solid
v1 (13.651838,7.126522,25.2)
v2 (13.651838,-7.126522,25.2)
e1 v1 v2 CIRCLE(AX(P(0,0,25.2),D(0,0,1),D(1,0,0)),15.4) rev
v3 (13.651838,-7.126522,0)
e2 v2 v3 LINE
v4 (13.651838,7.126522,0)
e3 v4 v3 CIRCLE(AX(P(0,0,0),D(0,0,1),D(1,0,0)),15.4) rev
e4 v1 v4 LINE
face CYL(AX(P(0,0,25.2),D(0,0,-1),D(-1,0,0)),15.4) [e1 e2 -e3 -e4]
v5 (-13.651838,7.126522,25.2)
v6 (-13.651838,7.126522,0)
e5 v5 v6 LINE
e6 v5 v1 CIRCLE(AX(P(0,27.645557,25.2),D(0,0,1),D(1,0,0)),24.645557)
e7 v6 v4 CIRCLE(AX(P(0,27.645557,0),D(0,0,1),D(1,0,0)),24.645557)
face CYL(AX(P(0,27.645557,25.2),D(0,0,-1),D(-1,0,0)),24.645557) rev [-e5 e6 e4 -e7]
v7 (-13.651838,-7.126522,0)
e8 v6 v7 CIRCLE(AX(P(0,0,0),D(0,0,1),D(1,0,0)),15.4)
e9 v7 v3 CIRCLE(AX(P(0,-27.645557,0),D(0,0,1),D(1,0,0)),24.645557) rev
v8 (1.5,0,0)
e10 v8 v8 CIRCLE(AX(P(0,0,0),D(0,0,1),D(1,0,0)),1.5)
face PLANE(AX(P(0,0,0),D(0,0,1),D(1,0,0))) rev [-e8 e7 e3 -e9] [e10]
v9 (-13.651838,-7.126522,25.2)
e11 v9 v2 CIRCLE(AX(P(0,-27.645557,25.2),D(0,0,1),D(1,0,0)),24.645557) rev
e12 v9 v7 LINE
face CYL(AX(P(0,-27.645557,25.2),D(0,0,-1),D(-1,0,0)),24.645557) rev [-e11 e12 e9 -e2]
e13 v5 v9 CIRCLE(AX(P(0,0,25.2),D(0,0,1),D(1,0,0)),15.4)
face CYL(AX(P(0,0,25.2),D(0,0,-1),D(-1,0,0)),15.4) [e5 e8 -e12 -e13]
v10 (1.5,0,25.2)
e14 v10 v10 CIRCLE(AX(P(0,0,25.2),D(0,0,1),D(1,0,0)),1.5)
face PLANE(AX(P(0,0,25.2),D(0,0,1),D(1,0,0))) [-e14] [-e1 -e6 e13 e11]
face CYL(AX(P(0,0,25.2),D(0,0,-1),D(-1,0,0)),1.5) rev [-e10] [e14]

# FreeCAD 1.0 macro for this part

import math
import FreeCAD as App
import Part
import Sketcher

V = App.Vector

doc = App.newDocument("Part")
body = doc.addObject("PartDesign::Body", "Body")

sketch1 = body.newObject("Sketcher::SketchObject", "Sketch")
sketch1.AttachmentSupport = (doc.getObject("XY_Plane"), [""])
sketch1.MapMode = "FlatFace"
sketch1.addGeometry(Part.ArcOfCircle(Part.Circle(V(0, 0, 0), V(0, 0, 1), 15.4), math.radians(152.43), math.radians(168.77)), False)
sketch1.addGeometry(Part.ArcOfCircle(Part.Circle(V(0, 0, 0), V(0, 0, 1), 15.4), math.radians(168.77), math.radians(180)), False)
sketch1.addGeometry(Part.ArcOfCircle(Part.Circle(V(0, 0, 0), V(0, 0, 1), 15.4), math.radians(-180), math.radians(-168.77)), False)
sketch1.addGeometry(Part.ArcOfCircle(Part.Circle(V(0, 0, 0), V(0, 0, 1), 15.4), math.radians(-168.77), math.radians(-152.43)), False)
sketch1.addGeometry(Part.ArcOfCircle(Part.Circle(V(0, -27.6, 0), V(0, 0, 1), 24.6), math.radians(90), math.radians(124)), False)
sketch1.addGeometry(Part.ArcOfCircle(Part.Circle(V(0, -27.6, 0), V(0, 0, 1), 24.6), math.radians(56), math.radians(90)), False)
sketch1.addGeometry(Part.ArcOfCircle(Part.Circle(V(0, 0, 0), V(0, 0, 1), 15.4), math.radians(-27.57), math.radians(-11.23)), False)
sketch1.addGeometry(Part.ArcOfCircle(Part.Circle(V(0, 0, 0), V(0, 0, 1), 15.4), math.radians(-11.23), math.radians(0)), False)
sketch1.addGeometry(Part.ArcOfCircle(Part.Circle(V(0, 0, 0), V(0, 0, 1), 15.4), math.radians(0), math.radians(11.23)), False)
sketch1.addGeometry(Part.ArcOfCircle(Part.Circle(V(0, 0, 0), V(0, 0, 1), 15.4), math.radians(11.23), math.radians(27.57)), False)
sketch1.addGeometry(Part.ArcOfCircle(Part.Circle(V(0, 27.6, 0), V(0, 0, 1), 24.6), math.radians(-90), math.radians(-56)), False)
sketch1.addGeometry(Part.ArcOfCircle(Part.Circle(V(0, 27.6, 0), V(0, 0, 1), 24.6), math.radians(-124), math.radians(-90)), False)
sketch1.addGeometry(Part.Circle(V(0, 0, 0), V(0, 0, 1), 1.5), False)
sketch1.addConstraint(Sketcher.Constraint("Tangent", 0, 2, 1, 1))
sketch1.addConstraint(Sketcher.Constraint("Tangent", 1, 2, 2, 1))
sketch1.addConstraint(Sketcher.Constraint("Tangent", 2, 2, 3, 1))
sketch1.addConstraint(Sketcher.Constraint("Coincident", 3, 2, 4, 2))
sketch1.addConstraint(Sketcher.Constraint("Tangent", 4, 1, 5, 2))
sketch1.addConstraint(Sketcher.Constraint("Coincident", 5, 1, 6, 1))
sketch1.addConstraint(Sketcher.Constraint("Tangent", 6, 2, 7, 1))
sketch1.addConstraint(Sketcher.Constraint("Tangent", 7, 2, 8, 1))
sketch1.addConstraint(Sketcher.Constraint("Tangent", 8, 2, 9, 1))
sketch1.addConstraint(Sketcher.Constraint("Coincident", 9, 2, 10, 2))
sketch1.addConstraint(Sketcher.Constraint("Tangent", 10, 1, 11, 2))
sketch1.addConstraint(Sketcher.Constraint("Coincident", 11, 1, 0, 1))
sketch1.addConstraint(Sketcher.Constraint("Coincident", 0, 3, -1, 1))
sketch1.addConstraint(Sketcher.Constraint("Coincident", 2, 3, -1, 1))
sketch1.addConstraint(Sketcher.Constraint("Coincident", 6, 3, -1, 1))
sketch1.addConstraint(Sketcher.Constraint("Coincident", 8, 3, -1, 1))
sketch1.addConstraint(Sketcher.Constraint("Coincident", 12, 3, -1, 1))
sketch1.addConstraint(Sketcher.Constraint("Equal", 2, 3))
sketch1.addConstraint(Sketcher.Constraint("Equal", 4, 5))
sketch1.addConstraint(Sketcher.Constraint("Equal", 3, 6))
sketch1.addConstraint(Sketcher.Constraint("Equal", 8, 9))
sketch1.addConstraint(Sketcher.Constraint("Equal", 5, 10))
sketch1.addConstraint(Sketcher.Constraint("Equal", 10, 11))
sketch1.addConstraint(Sketcher.Constraint("Symmetric", 4, 3, 10, 3, -1, 1))
sketch1.addConstraint(Sketcher.Constraint("PointOnObject", 4, 3, -2))
sketch1.addConstraint(Sketcher.Constraint("PointOnObject", 1, 2, -1))
sketch1.addConstraint(Sketcher.Constraint("PointOnObject", 4, 1, -2))
sketch1.addConstraint(Sketcher.Constraint("PointOnObject", 7, 2, -1))
sketch1.addConstraint(Sketcher.Constraint("PointOnObject", 10, 1, -2))
sketch1.addConstraint(Sketcher.Constraint("Horizontal", 2, 2, 4, 1))
sketch1.addConstraint(Sketcher.Constraint("Horizontal", 4, 1, 6, 2))
sketch1.addConstraint(Sketcher.Constraint("Horizontal", 0, 2, 8, 2))
sketch1.addConstraint(Sketcher.Constraint("Horizontal", 8, 2, 10, 1))
sketch1.addConstraint(Sketcher.Constraint("Diameter", 12, 3.0))
sketch1.addConstraint(Sketcher.Constraint("Radius", 0, 15.4))
sketch1.addConstraint(Sketcher.Constraint("DistanceY", -1, 1, 0, 2, 3.0))
sketch1.addConstraint(Sketcher.Constraint("Radius", 4, 24.645557))
pad1 = body.newObject("PartDesign::Pad", "Pad")
pad1.Profile = sketch1
pad1.Length = 25.2

doc.recompute()
